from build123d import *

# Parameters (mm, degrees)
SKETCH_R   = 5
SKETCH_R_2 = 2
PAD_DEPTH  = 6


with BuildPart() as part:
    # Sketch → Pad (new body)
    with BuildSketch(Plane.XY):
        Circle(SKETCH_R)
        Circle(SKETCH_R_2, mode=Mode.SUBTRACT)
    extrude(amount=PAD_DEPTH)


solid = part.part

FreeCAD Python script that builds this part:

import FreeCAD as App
import Part
import Sketcher

V = App.Vector
Q = App.Units.Quantity

doc = App.newDocument("Part")
body = doc.addObject("PartDesign::Body", "Body")

sketch1 = body.newObject("Sketcher::SketchObject", "Sketch")
sketch1.AttachmentSupport = (doc.getObject("XY_Plane"), [""])
sketch1.MapMode = "FlatFace"
sketch1.addGeometry(Part.Circle(V(0, 0, 0), V(0, 0, 1), 5), False)
sketch1.addGeometry(Part.Circle(V(0, 0, 0), V(0, 0, 1), 2), False)
sketch1.addConstraint(Sketcher.Constraint("Coincident", 0, 3, -1, 1))
sketch1.addConstraint(Sketcher.Constraint("Coincident", 1, 3, -1, 1))
sketch1.addConstraint(Sketcher.Constraint("Diameter", 0, Q("10 mm")))
sketch1.addConstraint(Sketcher.Constraint("Diameter", 1, Q("4 mm")))
pad1 = body.newObject("PartDesign::Pad", "Pad")
pad1.Profile = sketch1
pad1.Length = 6

doc.recompute()
